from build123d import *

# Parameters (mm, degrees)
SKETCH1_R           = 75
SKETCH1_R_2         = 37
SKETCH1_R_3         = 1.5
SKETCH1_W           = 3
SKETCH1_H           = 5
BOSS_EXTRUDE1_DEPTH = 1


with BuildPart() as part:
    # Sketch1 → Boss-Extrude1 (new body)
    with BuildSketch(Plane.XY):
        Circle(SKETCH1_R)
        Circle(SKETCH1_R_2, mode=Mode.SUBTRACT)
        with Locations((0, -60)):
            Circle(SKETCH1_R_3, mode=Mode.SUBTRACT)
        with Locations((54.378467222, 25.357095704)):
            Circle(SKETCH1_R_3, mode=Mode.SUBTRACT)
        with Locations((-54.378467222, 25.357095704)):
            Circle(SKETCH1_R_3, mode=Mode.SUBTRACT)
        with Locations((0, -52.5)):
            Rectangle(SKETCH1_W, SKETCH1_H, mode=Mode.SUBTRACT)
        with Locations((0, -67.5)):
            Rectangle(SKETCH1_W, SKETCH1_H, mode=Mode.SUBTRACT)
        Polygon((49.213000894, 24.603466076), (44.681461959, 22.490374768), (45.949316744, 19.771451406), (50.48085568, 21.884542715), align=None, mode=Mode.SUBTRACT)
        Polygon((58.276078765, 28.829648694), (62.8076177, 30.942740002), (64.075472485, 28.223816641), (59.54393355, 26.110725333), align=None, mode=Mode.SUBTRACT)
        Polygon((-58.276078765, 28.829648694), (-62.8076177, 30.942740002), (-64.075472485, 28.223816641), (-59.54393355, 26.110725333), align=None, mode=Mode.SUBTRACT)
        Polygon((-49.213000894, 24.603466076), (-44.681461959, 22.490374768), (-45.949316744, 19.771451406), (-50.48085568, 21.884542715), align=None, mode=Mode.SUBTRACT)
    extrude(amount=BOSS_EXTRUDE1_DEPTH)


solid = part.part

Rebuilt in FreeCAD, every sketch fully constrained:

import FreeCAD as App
import Part
import Sketcher

V = App.Vector
Q = App.Units.Quantity

doc = App.newDocument("Part")
body = doc.addObject("PartDesign::Body", "Body")

# Sketch on XY plane
sketch1 = body.newObject("Sketcher::SketchObject", "Sketch")
sketch1.AttachmentSupport = (doc.getObject("XY_Plane"), [""])
sketch1.MapMode = "FlatFace"
sketch1.addGeometry(Part.Circle(V(0, 0, 0), V(0, 0, 1), 75), False)
sketch1.addGeometry(Part.LineSegment(V(1.5, -70, 0), V(-1.5, -70, 0)), False)
sketch1.addGeometry(Part.LineSegment(V(-1.5, -70, 0), V(-1.5, -65, 0)), False)
sketch1.addGeometry(Part.LineSegment(V(-1.5, -65, 0), V(1.5, -65, 0)), False)
sketch1.addGeometry(Part.LineSegment(V(1.5, -65, 0), V(1.5, -70, 0)), False)
sketch1.addGeometry(Part.Circle(V(0, -60, 0), V(0, 0, 1), 1.5), False)
sketch1.addGeometry(Part.LineSegment(V(1.5, -55, 0), V(-1.5, -55, 0)), False)
sketch1.addGeometry(Part.LineSegment(V(-1.5, -55, 0), V(-1.5, -50, 0)), False)
sketch1.addGeometry(Part.LineSegment(V(-1.5, -50, 0), V(1.5, -50, 0)), False)
sketch1.addGeometry(Part.LineSegment(V(1.5, -50, 0), V(1.5, -55, 0)), False)
sketch1.addGeometry(Part.LineSegment(V(-50.5, 21.9, 0), V(-49.2, 24.6, 0)), False)
sketch1.addGeometry(Part.LineSegment(V(-49.2, 24.6, 0), V(-44.7, 22.5, 0)), False)
sketch1.addGeometry(Part.LineSegment(V(-44.7, 22.5, 0), V(-45.9, 19.8, 0)), False)
sketch1.addGeometry(Part.LineSegment(V(-45.9, 19.8, 0), V(-50.5, 21.9, 0)), False)
sketch1.addGeometry(Part.LineSegment(V(-62.8, 30.9, 0), V(-58.3, 28.8, 0)), False)
sketch1.addGeometry(Part.LineSegment(V(-58.3, 28.8, 0), V(-59.5, 26.1, 0)), False)
sketch1.addGeometry(Part.LineSegment(V(-59.5, 26.1, 0), V(-64.1, 28.2, 0)), False)
sketch1.addGeometry(Part.LineSegment(V(-64.1, 28.2, 0), V(-62.8, 30.9, 0)), False)
sketch1.addGeometry(Part.Circle(V(-54.4, 25.4, 0), V(0, 0, 1), 1.5), False)
sketch1.addGeometry(Part.Circle(V(0, 0, 0), V(0, 0, 1), 37), False)
sketch1.addGeometry(Part.LineSegment(V(44.7, 22.5, 0), V(49.2, 24.6, 0)), False)
sketch1.addGeometry(Part.LineSegment(V(49.2, 24.6, 0), V(50.5, 21.9, 0)), False)
sketch1.addGeometry(Part.LineSegment(V(50.5, 21.9, 0), V(45.9, 19.8, 0)), False)
sketch1.addGeometry(Part.LineSegment(V(45.9, 19.8, 0), V(44.7, 22.5, 0)), False)
sketch1.addGeometry(Part.Circle(V(54.4, 25.4, 0), V(0, 0, 1), 1.5), False)
sketch1.addGeometry(Part.LineSegment(V(59.5, 26.1, 0), V(58.3, 28.8, 0)), False)
sketch1.addGeometry(Part.LineSegment(V(58.3, 28.8, 0), V(62.8, 30.9, 0)), False)
sketch1.addGeometry(Part.LineSegment(V(62.8, 30.9, 0), V(64.1, 28.2, 0)), False)
sketch1.addGeometry(Part.LineSegment(V(64.1, 28.2, 0), V(59.5, 26.1, 0)), False)
sketch1.addConstraint(Sketcher.Constraint("Coincident", 1, 2, 2, 1))
sketch1.addConstraint(Sketcher.Constraint("Coincident", 2, 2, 3, 1))
sketch1.addConstraint(Sketcher.Constraint("Coincident", 3, 2, 4, 1))
sketch1.addConstraint(Sketcher.Constraint("Coincident", 4, 2, 1, 1))
sketch1.addConstraint(Sketcher.Constraint("Coincident", 6, 2, 7, 1))
sketch1.addConstraint(Sketcher.Constraint("Coincident", 7, 2, 8, 1))
sketch1.addConstraint(Sketcher.Constraint("Coincident", 8, 2, 9, 1))
sketch1.addConstraint(Sketcher.Constraint("Coincident", 9, 2, 6, 1))
sketch1.addConstraint(Sketcher.Constraint("Coincident", 10, 2, 11, 1))
sketch1.addConstraint(Sketcher.Constraint("Coincident", 11, 2, 12, 1))
sketch1.addConstraint(Sketcher.Constraint("Coincident", 12, 2, 13, 1))
sketch1.addConstraint(Sketcher.Constraint("Coincident", 13, 2, 10, 1))
sketch1.addConstraint(Sketcher.Constraint("Coincident", 14, 2, 15, 1))
sketch1.addConstraint(Sketcher.Constraint("Coincident", 15, 2, 16, 1))
sketch1.addConstraint(Sketcher.Constraint("Coincident", 16, 2, 17, 1))
sketch1.addConstraint(Sketcher.Constraint("Coincident", 17, 2, 14, 1))
sketch1.addConstraint(Sketcher.Constraint("Coincident", 20, 2, 21, 1))
sketch1.addConstraint(Sketcher.Constraint("Coincident", 21, 2, 22, 1))
sketch1.addConstraint(Sketcher.Constraint("Coincident", 22, 2, 23, 1))
sketch1.addConstraint(Sketcher.Constraint("Coincident", 23, 2, 20, 1))
sketch1.addConstraint(Sketcher.Constraint("Coincident", 25, 2, 26, 1))
sketch1.addConstraint(Sketcher.Constraint("Coincident", 26, 2, 27, 1))
sketch1.addConstraint(Sketcher.Constraint("Coincident", 27, 2, 28, 1))
sketch1.addConstraint(Sketcher.Constraint("Coincident", 28, 2, 25, 1))
sketch1.addConstraint(Sketcher.Constraint("Horizontal", 1))
sketch1.addConstraint(Sketcher.Constraint("Vertical", 2))
sketch1.addConstraint(Sketcher.Constraint("Horizontal", 3))
sketch1.addConstraint(Sketcher.Constraint("Vertical", 4))
sketch1.addConstraint(Sketcher.Constraint("Horizontal", 6))
sketch1.addConstraint(Sketcher.Constraint("Vertical", 7))
sketch1.addConstraint(Sketcher.Constraint("Horizontal", 8))
sketch1.addConstraint(Sketcher.Constraint("Vertical", 9))
sketch1.addConstraint(Sketcher.Constraint("Coincident", 0, 3, -1, 1))
sketch1.addConstraint(Sketcher.Constraint("Coincident", 19, 3, -1, 1))
sketch1.addConstraint(Sketcher.Constraint("Equal", 5, 18))
sketch1.addConstraint(Sketcher.Constraint("Equal", 18, 24))
sketch1.addConstraint(Sketcher.Constraint("Symmetric", 18, 3, 24, 3, -2))
sketch1.addConstraint(Sketcher.Constraint("Symmetric", 10, 2, 20, 2, -2))
sketch1.addConstraint(Sketcher.Constraint("Symmetric", 13, 2, 21, 2, -2))
sketch1.addConstraint(Sketcher.Constraint("Symmetric", 12, 2, 22, 2, -2))
sketch1.addConstraint(Sketcher.Constraint("Symmetric", 11, 2, 23, 2, -2))
sketch1.addConstraint(Sketcher.Constraint("Symmetric", 14, 2, 25, 2, -2))
sketch1.addConstraint(Sketcher.Constraint("Symmetric", 17, 2, 26, 2, -2))
sketch1.addConstraint(Sketcher.Constraint("Symmetric", 16, 2, 27, 2, -2))
sketch1.addConstraint(Sketcher.Constraint("Symmetric", 15, 2, 28, 2, -2))
sketch1.addConstraint(Sketcher.Constraint("PointOnObject", 5, 3, -2))
sketch1.addConstraint(Sketcher.Constraint("Perpendicular", 10, 11))
sketch1.addConstraint(Sketcher.Constraint("Perpendicular", 11, 12))
sketch1.addConstraint(Sketcher.Constraint("Perpendicular", 12, 13))
sketch1.addConstraint(Sketcher.Constraint("Parallel", 13, 14))
sketch1.addConstraint(Sketcher.Constraint("Perpendicular", 14, 15))
sketch1.addConstraint(Sketcher.Constraint("Perpendicular", 15, 16))
sketch1.addConstraint(Sketcher.Constraint("Perpendicular", 16, 17))
sketch1.addConstraint(Sketcher.Constraint("Vertical", 2, 2, 6, 2))
sketch1.addConstraint(Sketcher.Constraint("Vertical", 4, 2, 8, 2))
sketch1.addConstraint(Sketcher.Constraint("Equal", 4, 7))
sketch1.addConstraint(Sketcher.Constraint("Equal", 13, 14))
sketch1.addConstraint(Sketcher.Constraint("Equal", 12, 15))
sketch1.addConstraint(Sketcher.Constraint("Diameter", 0, 150.0))
sketch1.addConstraint(Sketcher.Constraint("Diameter", 5, 3.0))
sketch1.addConstraint(Sketcher.Constraint("Diameter", 19, 74.0))
sketch1.addConstraint(Sketcher.Constraint("DistanceX", 1, 2, 1, 1, 3.0))
sketch1.addConstraint(Sketcher.Constraint("DistanceY", 2, 1, 2, 2, 5.0))
sketch1.addConstraint(Sketcher.Constraint("Angle", 10, Q("65 deg")))
sketch1.addConstraint(Sketcher.Constraint("Distance", 10, 3.0))
sketch1.addConstraint(Sketcher.Constraint("Distance", 11, 5.0))
sketch1.addConstraint(Sketcher.Constraint("DistanceY", 5, 3, -1, 1, 60.0))
sketch1.addConstraint(Sketcher.Constraint("DistanceY", 1, 2, -1, 1, 70.0))
sketch1.addConstraint(Sketcher.Constraint("DistanceY", 6, 2, -1, 1, 55.0))
sketch1.addConstraint(Sketcher.Constraint("DistanceX", 1, 2, -1, 1, 1.5))
sketch1.addConstraint(Sketcher.Constraint("DistanceX", 10, 2, -1, 1, 49.213001))
sketch1.addConstraint(Sketcher.Constraint("DistanceY", -1, 1, 12, 2, 19.771451))
sketch1.addConstraint(Sketcher.Constraint("DistanceX", 14, 2, -1, 1, 58.276079))
sketch1.addConstraint(Sketcher.Constraint("DistanceY", -1, 1, 14, 2, 28.829649))
sketch1.addConstraint(Sketcher.Constraint("DistanceY", 10, 2, 18, 3, 0.75363))
sketch1.addConstraint(Sketcher.Constraint("DistanceX", 18, 3, 12, 2, 8.42915))
pad1 = body.newObject("PartDesign::Pad", "Pad")
pad1.Profile = sketch1
pad1.Length = 1

doc.recompute()
